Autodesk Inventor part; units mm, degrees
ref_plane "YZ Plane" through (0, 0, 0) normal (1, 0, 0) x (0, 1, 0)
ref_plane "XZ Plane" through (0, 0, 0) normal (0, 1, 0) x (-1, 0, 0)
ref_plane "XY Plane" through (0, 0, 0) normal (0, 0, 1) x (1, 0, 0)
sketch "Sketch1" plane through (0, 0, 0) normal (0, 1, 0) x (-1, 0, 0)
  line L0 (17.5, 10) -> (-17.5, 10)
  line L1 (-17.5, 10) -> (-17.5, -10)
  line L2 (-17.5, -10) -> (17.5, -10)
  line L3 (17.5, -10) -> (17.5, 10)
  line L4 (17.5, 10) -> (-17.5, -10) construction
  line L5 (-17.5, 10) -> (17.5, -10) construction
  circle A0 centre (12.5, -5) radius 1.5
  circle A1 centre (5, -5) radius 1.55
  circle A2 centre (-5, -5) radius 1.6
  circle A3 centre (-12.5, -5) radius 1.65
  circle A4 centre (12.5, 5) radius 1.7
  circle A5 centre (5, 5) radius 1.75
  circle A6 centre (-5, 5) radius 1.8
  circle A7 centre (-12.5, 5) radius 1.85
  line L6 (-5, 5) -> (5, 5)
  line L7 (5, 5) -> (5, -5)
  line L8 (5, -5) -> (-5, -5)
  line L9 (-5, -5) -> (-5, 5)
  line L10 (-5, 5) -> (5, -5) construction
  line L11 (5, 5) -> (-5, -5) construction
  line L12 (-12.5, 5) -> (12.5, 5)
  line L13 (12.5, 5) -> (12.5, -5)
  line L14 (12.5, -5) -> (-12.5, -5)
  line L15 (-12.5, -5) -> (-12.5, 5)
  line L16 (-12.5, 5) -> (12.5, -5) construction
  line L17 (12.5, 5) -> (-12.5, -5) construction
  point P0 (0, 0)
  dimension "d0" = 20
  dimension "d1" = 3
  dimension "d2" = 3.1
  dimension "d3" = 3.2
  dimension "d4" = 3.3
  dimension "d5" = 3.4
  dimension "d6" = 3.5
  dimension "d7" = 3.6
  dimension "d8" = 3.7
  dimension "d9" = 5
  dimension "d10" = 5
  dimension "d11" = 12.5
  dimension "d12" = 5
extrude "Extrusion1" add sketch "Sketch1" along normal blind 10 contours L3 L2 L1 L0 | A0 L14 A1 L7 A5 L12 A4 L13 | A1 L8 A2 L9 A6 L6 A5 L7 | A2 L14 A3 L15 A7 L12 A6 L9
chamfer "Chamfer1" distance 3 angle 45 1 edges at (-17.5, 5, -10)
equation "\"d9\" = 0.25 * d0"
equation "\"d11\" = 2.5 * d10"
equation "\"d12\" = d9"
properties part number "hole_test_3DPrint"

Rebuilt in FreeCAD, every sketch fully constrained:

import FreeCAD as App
import Part
import Sketcher
from FreeCAD import Vector


def edges_at(feature, points):
    """Names of the edges that pass closest to the given points."""
    edges = feature.Shape.Edges
    near = lambda p: min(range(len(edges)), key=lambda i: edges[i].distToShape(Part.Vertex(*p))[0])
    return sorted({f"Edge{near(p) + 1}" for p in points})

doc = App.newDocument("Part")
params = doc.addObject("Spreadsheet::Sheet", "Params")
for row, (alias, value) in enumerate([
    ("sketch1_diameter", "3 mm"),
    ("sketch1_diameter2", "3.4 mm"),
    ("sketch1_diameter3", "3.5 mm"),
    ("sketch1_diameter4", "3.6 mm"),
    ("sketch1_diameter5", "3.7 mm"),
    ("pad1_length", "10 mm"),
    ("chamfer_size", "3 mm"),
], start=1):
    params.set(f"A{row}", alias)
    params.set(f"B{row}", "=" + value)
    params.setAlias(f"B{row}", alias)

body = doc.addObject("PartDesign::Body", "Body")

# Sketch on XZ plane
sketch1 = body.newObject("Sketcher::SketchObject", "Sketch")
sketch1.AttachmentSupport = (doc.getObject("XZ_Plane"), [""])
sketch1.MapMode = "FlatFace"
sketch1.addGeometry([
    Part.LineSegment(Vector(-17.5, -10, 0), Vector(-17.5, 10, 0)),  # 0
    Part.LineSegment(Vector(-17.5, 10, 0), Vector(17.5, 10, 0)),  # 1
    Part.LineSegment(Vector(17.5, 10, 0), Vector(17.5, -10, 0)),  # 2
    Part.LineSegment(Vector(17.5, -10, 0), Vector(-17.5, -10, 0)),  # 3
    Part.Circle(Vector(-12.5, -5, 0), Vector(0, 0, 1), 1.5),  # 4
    Part.Circle(Vector(-12.5, 5, 0), Vector(0, 0, 1), 1.7),  # 5
    Part.Circle(Vector(-5, 5, 0), Vector(0, 0, 1), 1.8),  # 6
    Part.Circle(Vector(5, 5, 0), Vector(0, 0, 1), 1.8),  # 7
    Part.Circle(Vector(12.5, 5, 0), Vector(0, 0, 1), 1.9),  # 8
    Part.Circle(Vector(12.5, -5, 0), Vector(0, 0, 1), 1.6),  # 9
    Part.Circle(Vector(5, -5, 0), Vector(0, 0, 1), 1.6),  # 10
    Part.Circle(Vector(-5, -5, 0), Vector(0, 0, 1), 1.6),  # 11
], False)
sketch1.addConstraint([
    Sketcher.Constraint("Coincident", 0, 2, 1, 1),
    Sketcher.Constraint("Coincident", 1, 2, 2, 1),
    Sketcher.Constraint("Coincident", 2, 2, 3, 1),
    Sketcher.Constraint("Coincident", 3, 2, 0, 1),
    Sketcher.Constraint("Vertical", 0),
    Sketcher.Constraint("Horizontal", 1),
    Sketcher.Constraint("Vertical", 2),
    Sketcher.Constraint("Horizontal", 3),
    Sketcher.Constraint("Symmetric", 4, 3, 8, 3, -1, 1),
    Sketcher.Constraint("Symmetric", 5, 3, 9, 3, -1, 1),
    Sketcher.Constraint("Symmetric", 6, 3, 10, 3, -1, 1),
    Sketcher.Constraint("Symmetric", 7, 3, 11, 3, -1, 1),
    Sketcher.Constraint("Symmetric", 0, 2, 2, 2, -1, 1),
    Sketcher.Constraint("Symmetric", 6, 3, 7, 3, -2),
    Sketcher.Constraint("Symmetric", 5, 3, 8, 3, -2),
    Sketcher.Constraint("Horizontal", 5, 3, 6, 3),
    Sketcher.Constraint("Diameter", 4, 3.0),
    Sketcher.Constraint("Diameter", 5, 3.4),
    Sketcher.Constraint("Diameter", 6, 3.5),
    Sketcher.Constraint("Diameter", 7, 3.6),
    Sketcher.Constraint("Diameter", 8, 3.7),
    Sketcher.Constraint("Diameter", 9, 3.3),
    Sketcher.Constraint("Diameter", 10, 3.2),
    Sketcher.Constraint("Diameter", 11, 3.1),
    Sketcher.Constraint("DistanceY", 0, 1, 0, 2, 20.0),
    Sketcher.Constraint("DistanceY", 4, 3, -1, 1, 5.0),
    Sketcher.Constraint("DistanceX", 6, 3, -1, 1, 5.0),
    Sketcher.Constraint("DistanceX", 0, 2, 5, 3, 5.0),
    Sketcher.Constraint("DistanceX", 4, 3, -1, 1, 12.5),
])
sketch1.setExpression("Constraints[16]", "Params.sketch1_diameter")
sketch1.setExpression("Constraints[17]", "Params.sketch1_diameter2")
sketch1.setExpression("Constraints[18]", "Params.sketch1_diameter3")
sketch1.setExpression("Constraints[19]", "Params.sketch1_diameter4")
sketch1.setExpression("Constraints[20]", "Params.sketch1_diameter5")
pad1 = body.newObject("PartDesign::Pad", "Pad")
pad1.Profile = sketch1
pad1.setExpression("Length", "Params.pad1_length")
pad1.Reversed = True
doc.recompute()

chamfer = body.newObject("PartDesign::Chamfer", "Chamfer")
chamfer.Base = (pad1, edges_at(pad1, [(-17.5, 5, -10)]))
chamfer.setExpression("Size", "Params.chamfer_size")

doc.recompute()
